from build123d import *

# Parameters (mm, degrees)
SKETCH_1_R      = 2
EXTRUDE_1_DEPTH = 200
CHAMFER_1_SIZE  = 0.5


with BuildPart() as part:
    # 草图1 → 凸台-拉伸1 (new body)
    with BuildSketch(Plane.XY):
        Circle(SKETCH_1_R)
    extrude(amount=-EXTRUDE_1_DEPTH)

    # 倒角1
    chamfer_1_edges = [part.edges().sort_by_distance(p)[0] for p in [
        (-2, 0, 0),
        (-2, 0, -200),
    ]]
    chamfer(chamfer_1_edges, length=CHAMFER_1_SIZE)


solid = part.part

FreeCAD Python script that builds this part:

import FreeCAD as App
import Part
import Sketcher
from FreeCAD import Vector


def edges_at(feature, points):
    """Names of the edges that pass closest to the given points."""
    edges = feature.Shape.Edges
    near = lambda p: min(range(len(edges)), key=lambda i: edges[i].distToShape(Part.Vertex(*p))[0])
    return sorted({f"Edge{near(p) + 1}" for p in points})

doc = App.newDocument("Part")
body = doc.addObject("PartDesign::Body", "Body")

# Sketch on XY plane
sketch1 = doc.addObject("Sketcher::SketchObject", "Sketch")
body.addObject(sketch1)
sketch1.AttachmentSupport = (doc.XY_Plane, [""])
sketch1.MapMode = "FlatFace"
sketch1.addGeometry(Part.Circle(Vector(0, 0, 0), Vector(0, 0, 1), 2), False)
sketch1.addConstraint([
    Sketcher.Constraint("Coincident", 0, 3, -1, 1),
    Sketcher.Constraint("Diameter", 0, 4.0),
])
pad1 = doc.addObject("PartDesign::Pad", "Pad")
body.addObject(pad1)
pad1.Profile = sketch1
pad1.Length = 200
pad1.Reversed = True
doc.recompute()

chamfer = doc.addObject("PartDesign::Chamfer", "Chamfer")
body.addObject(chamfer)
chamfer.Base = (pad1, edges_at(pad1, [(-2, 0, 0), (-2, 0, -200)]))
chamfer.Size = 0.5

doc.recompute()
